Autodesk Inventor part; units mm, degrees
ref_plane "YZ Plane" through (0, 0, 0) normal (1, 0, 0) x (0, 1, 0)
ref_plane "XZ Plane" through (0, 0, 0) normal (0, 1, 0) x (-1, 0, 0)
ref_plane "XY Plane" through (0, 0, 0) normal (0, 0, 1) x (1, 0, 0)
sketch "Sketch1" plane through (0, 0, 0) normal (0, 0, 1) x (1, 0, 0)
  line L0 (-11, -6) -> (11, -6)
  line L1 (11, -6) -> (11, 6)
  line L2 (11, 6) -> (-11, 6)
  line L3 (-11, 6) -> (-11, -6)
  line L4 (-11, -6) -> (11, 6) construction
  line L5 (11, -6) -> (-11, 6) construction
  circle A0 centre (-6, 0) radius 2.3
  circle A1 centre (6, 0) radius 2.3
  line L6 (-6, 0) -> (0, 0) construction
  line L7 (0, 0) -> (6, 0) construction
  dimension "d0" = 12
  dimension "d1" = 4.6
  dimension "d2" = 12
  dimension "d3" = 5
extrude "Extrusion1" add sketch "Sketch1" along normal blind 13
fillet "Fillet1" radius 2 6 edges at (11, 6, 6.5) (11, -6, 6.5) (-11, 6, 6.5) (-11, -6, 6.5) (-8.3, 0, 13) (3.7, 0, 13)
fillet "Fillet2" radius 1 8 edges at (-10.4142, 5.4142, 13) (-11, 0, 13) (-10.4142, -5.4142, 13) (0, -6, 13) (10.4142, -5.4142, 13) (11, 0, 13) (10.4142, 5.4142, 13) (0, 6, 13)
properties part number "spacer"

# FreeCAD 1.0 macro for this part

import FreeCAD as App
import Part
import Sketcher
from FreeCAD import Vector


def edges_at(feature, points):
    """Names of the edges that pass closest to the given points."""
    edges = feature.Shape.Edges
    near = lambda p: min(range(len(edges)), key=lambda i: edges[i].distToShape(Part.Vertex(*p))[0])
    return sorted({f"Edge{near(p) + 1}" for p in points})

doc = App.newDocument("Part")
body = doc.addObject("PartDesign::Body", "Body")

sketch1 = body.newObject("Sketcher::SketchObject", "Sketch")
sketch1.AttachmentSupport = (doc.getObject("XY_Plane"), [""])
sketch1.MapMode = "FlatFace"
sketch1.addGeometry([
    Part.LineSegment(Vector(-11, 6, 0), Vector(-11, -6, 0)),
    Part.LineSegment(Vector(-11, -6, 0), Vector(11, -6, 0)),
    Part.LineSegment(Vector(11, -6, 0), Vector(11, 6, 0)),
    Part.LineSegment(Vector(11, 6, 0), Vector(-11, 6, 0)),
    Part.Circle(Vector(-6, 0, 0), Vector(0, 0, 1), 2.3),
    Part.Circle(Vector(6, 0, 0), Vector(0, 0, 1), 2.3),
], False)
sketch1.addConstraint([
    Sketcher.Constraint("Coincident", 0, 2, 1, 1),
    Sketcher.Constraint("Coincident", 1, 2, 2, 1),
    Sketcher.Constraint("Coincident", 2, 2, 3, 1),
    Sketcher.Constraint("Coincident", 3, 2, 0, 1),
    Sketcher.Constraint("Vertical", 0),
    Sketcher.Constraint("Horizontal", 1),
    Sketcher.Constraint("Vertical", 2),
    Sketcher.Constraint("Horizontal", 3),
    Sketcher.Constraint("Equal", 4, 5),
    Sketcher.Constraint("Symmetric", 4, 3, 5, 3, -1, 1),
    Sketcher.Constraint("Symmetric", 0, 2, 2, 2, -1, 1),
    Sketcher.Constraint("PointOnObject", 4, 3, -1),
    Sketcher.Constraint("Diameter", 4, 4.6),
    Sketcher.Constraint("DistanceY", 0, 2, 0, 1, 12.0),
    Sketcher.Constraint("DistanceX", 4, 3, 5, 3, 12.0),
    Sketcher.Constraint("DistanceX", 0, 2, 4, 3, 5.0),
])
pad1 = body.newObject("PartDesign::Pad", "Pad")
pad1.Profile = sketch1
pad1.Length = 13
doc.recompute()

fillet = body.newObject("PartDesign::Fillet", "Fillet")
fillet.Base = (pad1, edges_at(pad1, [
    (11, 6, 6.5),
    (11, -6, 6.5),
    (-11, 6, 6.5),
    (-11, -6, 6.5),
    (-8.3, 0, 13),
    (3.7, 0, 13),
]))
fillet.Radius = 2
doc.recompute()

fillet2 = body.newObject("PartDesign::Fillet", "Fillet001")
fillet2.Base = (fillet, edges_at(fillet, [
    (-10.414, 5.414, 13),
    (-11, 0, 13),
    (-10.414, -5.414, 13),
    (0, -6, 13),
    (10.414, -5.414, 13),
    (11, 0, 13),
    (10.414, 5.414, 13),
    (0, 6, 13),
]))
fillet2.Radius = 1

doc.recompute()
